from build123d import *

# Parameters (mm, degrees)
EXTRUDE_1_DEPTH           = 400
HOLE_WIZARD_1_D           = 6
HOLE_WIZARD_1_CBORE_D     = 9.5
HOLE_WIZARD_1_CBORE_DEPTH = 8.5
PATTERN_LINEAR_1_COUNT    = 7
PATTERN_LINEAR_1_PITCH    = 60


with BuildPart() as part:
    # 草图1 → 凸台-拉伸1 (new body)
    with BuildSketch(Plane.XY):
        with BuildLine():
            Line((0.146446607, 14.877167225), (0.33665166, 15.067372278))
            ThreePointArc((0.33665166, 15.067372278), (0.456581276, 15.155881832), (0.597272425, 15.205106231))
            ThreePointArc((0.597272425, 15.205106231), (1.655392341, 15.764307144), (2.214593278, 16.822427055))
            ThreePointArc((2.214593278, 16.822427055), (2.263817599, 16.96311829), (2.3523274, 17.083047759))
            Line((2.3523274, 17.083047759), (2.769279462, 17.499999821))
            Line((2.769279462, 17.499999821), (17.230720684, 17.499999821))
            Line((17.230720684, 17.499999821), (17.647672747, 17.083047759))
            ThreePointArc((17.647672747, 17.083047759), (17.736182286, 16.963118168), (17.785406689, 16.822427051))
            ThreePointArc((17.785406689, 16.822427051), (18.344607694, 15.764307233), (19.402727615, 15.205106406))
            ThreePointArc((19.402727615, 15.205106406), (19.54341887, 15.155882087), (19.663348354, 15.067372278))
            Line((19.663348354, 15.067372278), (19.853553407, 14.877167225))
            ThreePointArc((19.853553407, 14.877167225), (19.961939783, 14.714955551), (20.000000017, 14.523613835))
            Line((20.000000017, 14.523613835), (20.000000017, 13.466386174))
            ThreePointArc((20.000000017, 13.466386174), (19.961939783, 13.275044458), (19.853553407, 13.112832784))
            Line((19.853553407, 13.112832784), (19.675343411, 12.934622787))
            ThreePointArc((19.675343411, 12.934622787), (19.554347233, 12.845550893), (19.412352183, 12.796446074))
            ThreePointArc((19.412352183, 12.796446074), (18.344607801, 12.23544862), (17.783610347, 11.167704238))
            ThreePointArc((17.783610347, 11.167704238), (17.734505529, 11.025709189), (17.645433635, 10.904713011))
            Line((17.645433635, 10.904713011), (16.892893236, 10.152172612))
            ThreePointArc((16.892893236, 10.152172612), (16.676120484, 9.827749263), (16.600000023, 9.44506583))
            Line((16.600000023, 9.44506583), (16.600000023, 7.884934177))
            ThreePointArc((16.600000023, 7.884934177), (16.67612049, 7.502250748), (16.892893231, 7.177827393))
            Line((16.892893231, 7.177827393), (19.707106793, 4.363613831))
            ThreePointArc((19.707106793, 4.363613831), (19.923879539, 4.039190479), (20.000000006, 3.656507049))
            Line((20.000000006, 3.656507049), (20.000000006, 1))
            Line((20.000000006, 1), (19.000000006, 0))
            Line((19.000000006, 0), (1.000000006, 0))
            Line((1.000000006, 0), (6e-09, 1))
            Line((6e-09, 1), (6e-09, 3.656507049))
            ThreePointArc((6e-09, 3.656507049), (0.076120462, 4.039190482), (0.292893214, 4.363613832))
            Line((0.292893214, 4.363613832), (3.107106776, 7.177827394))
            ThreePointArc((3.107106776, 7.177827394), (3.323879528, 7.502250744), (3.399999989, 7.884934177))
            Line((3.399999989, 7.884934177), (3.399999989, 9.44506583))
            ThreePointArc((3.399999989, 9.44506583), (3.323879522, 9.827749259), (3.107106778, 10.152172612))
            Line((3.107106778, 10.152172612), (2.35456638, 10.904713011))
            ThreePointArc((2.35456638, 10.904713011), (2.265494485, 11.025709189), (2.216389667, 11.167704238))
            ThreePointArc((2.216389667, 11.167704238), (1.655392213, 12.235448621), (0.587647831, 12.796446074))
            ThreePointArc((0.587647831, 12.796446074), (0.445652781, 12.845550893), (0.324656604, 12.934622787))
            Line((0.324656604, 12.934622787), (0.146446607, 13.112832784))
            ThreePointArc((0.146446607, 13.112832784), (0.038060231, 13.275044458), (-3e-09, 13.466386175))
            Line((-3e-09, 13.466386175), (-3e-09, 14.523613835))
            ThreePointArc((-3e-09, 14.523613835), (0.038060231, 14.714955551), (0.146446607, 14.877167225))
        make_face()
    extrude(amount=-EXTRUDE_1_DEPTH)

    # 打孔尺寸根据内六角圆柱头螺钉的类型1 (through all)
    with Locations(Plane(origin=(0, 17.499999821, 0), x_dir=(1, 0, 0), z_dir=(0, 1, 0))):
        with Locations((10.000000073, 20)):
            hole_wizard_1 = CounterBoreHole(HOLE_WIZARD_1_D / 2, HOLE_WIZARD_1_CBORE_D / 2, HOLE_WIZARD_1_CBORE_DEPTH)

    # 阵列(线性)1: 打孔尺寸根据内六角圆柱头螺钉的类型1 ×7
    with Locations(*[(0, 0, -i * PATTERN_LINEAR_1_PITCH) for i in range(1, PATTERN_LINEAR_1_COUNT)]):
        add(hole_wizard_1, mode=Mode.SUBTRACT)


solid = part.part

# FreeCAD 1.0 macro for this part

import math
import FreeCAD as App
import Part
import Sketcher
from FreeCAD import Vector

doc = App.newDocument("Part")
body = doc.addObject("PartDesign::Body", "Body")

# Sketch on XY plane
sketch1 = body.newObject("Sketcher::SketchObject", "Sketch")
sketch1.AttachmentSupport = (doc.getObject("XY_Plane"), [""])
sketch1.MapMode = "FlatFace"
sketch1.addGeometry([
    Part.LineSegment(Vector(0.336652, 15.067372, 0), Vector(0.146447, 14.877167, 0)),  # 0
    Part.ArcOfCircle(Part.Circle(Vector(0.5, 14.523614, 0), Vector(0, 0, 1), 0.5), math.radians(135), math.radians(180)),  # 1
    Part.LineSegment(Vector(0, 14.523614, 0), Vector(0, 13.466386, 0)),  # 2
    Part.ArcOfCircle(Part.Circle(Vector(0.5, 13.466386, 0), Vector(0, 0, 1), 0.5), math.radians(180), math.radians(225)),  # 3
    Part.LineSegment(Vector(0.146447, 13.112833, 0), Vector(0.324657, 12.934623, 0)),  # 4
    Part.ArcOfCircle(Part.Circle(Vector(0.67821, 13.288176, 0), Vector(0, 0, 1), 0.5), math.radians(-135), math.radians(-100.435256)),  # 5
    Part.ArcOfCircle(Part.Circle(Vector(0.219965, 10.800022, 0), Vector(0, 0, 1), 2.03), math.radians(10.435255), math.radians(79.564745)),  # 6
    Part.ArcOfCircle(Part.Circle(Vector(2.70812, 11.258266, 0), Vector(0, 0, 1), 0.5), math.radians(-169.564745), math.radians(-135)),  # 7
    Part.LineSegment(Vector(2.354566, 10.904713, 0), Vector(3.107107, 10.152173, 0)),  # 8
    Part.ArcOfCircle(Part.Circle(Vector(2.4, 9.445066, 0), Vector(0, 0, 1), 1), math.radians(0.000001), math.radians(44.999998)),  # 9
    Part.LineSegment(Vector(3.4, 9.445066, 0), Vector(3.4, 7.884934, 0)),  # 10
    Part.ArcOfCircle(Part.Circle(Vector(2.4, 7.884934, 0), Vector(0, 0, 1), 1), math.radians(-45), math.radians(0.000001)),  # 11
    Part.LineSegment(Vector(3.107107, 7.177827, 0), Vector(0.292893, 4.363614, 0)),  # 12
    Part.ArcOfCircle(Part.Circle(Vector(1, 3.656507, 0), Vector(0, 0, 1), 1), math.radians(134.999999), math.radians(180.000002)),  # 13
    Part.LineSegment(Vector(0, 3.656507, 0), Vector(0, 1, 0)),  # 14
    Part.LineSegment(Vector(0, 1, 0), Vector(1, 0, 0)),  # 15
    Part.LineSegment(Vector(1, 0, 0), Vector(19, 0, 0)),  # 16
    Part.LineSegment(Vector(19, 0, 0), Vector(20, 1, 0)),  # 17
    Part.LineSegment(Vector(20, 1, 0), Vector(20, 3.656507, 0)),  # 18
    Part.ArcOfCircle(Part.Circle(Vector(19, 3.656507, 0), Vector(0, 0, 1), 1), math.radians(0), math.radians(44.999999)),  # 19
    Part.LineSegment(Vector(19.707107, 4.363614, 0), Vector(16.892893, 7.177827, 0)),  # 20
    Part.ArcOfCircle(Part.Circle(Vector(17.6, 7.884934, 0), Vector(0, 0, 1), 1), math.radians(-179.999999), math.radians(-135.000003)),  # 21
    Part.LineSegment(Vector(16.6, 7.884934, 0), Vector(16.6, 9.445066, 0)),  # 22
    Part.ArcOfCircle(Part.Circle(Vector(17.6, 9.445066, 0), Vector(0, 0, 1), 1), math.radians(134.999999), math.radians(180.000001)),  # 23
    Part.LineSegment(Vector(16.892893, 10.152173, 0), Vector(17.645434, 10.904713, 0)),  # 24
    Part.ArcOfCircle(Part.Circle(Vector(17.29188, 11.258266, 0), Vector(0, 0, 1), 0.5), math.radians(-45), math.radians(-10.435255)),  # 25
    Part.ArcOfCircle(Part.Circle(Vector(19.780035, 10.800022, 0), Vector(0, 0, 1), 2.03), math.radians(100.435256), math.radians(169.564744)),  # 26
    Part.ArcOfCircle(Part.Circle(Vector(19.32179, 13.288176, 0), Vector(0, 0, 1), 0.5), math.radians(-79.564744), math.radians(-45)),  # 27
    Part.LineSegment(Vector(19.675343, 12.934623, 0), Vector(19.853553, 13.112833, 0)),  # 28
    Part.ArcOfCircle(Part.Circle(Vector(19.5, 13.466386, 0), Vector(0, 0, 1), 0.5), math.radians(-45), math.radians(0)),  # 29
    Part.LineSegment(Vector(20, 13.466386, 0), Vector(20, 14.523614, 0)),  # 30
    Part.ArcOfCircle(Part.Circle(Vector(19.5, 14.523614, 0), Vector(0, 0, 1), 0.5), math.radians(0), math.radians(45)),  # 31
    Part.LineSegment(Vector(19.853553, 14.877167, 0), Vector(19.663348, 15.067372, 0)),  # 32
    Part.ArcOfCircle(Part.Circle(Vector(19.309796, 14.71382, 0), Vector(0, 0, 1), 0.499999), math.radians(44.99998), math.radians(79.288468)),  # 33
    Part.ArcOfCircle(Part.Circle(Vector(19.780034, 17.199734, 0), Vector(0, 0, 1), 2.03), math.radians(-169.288398), math.radians(-100.711592)),  # 34
    Part.ArcOfCircle(Part.Circle(Vector(17.294116, 16.729493, 0), Vector(0, 0, 1), 0.500003), math.radians(10.711658), math.radians(44.999835)),  # 35
    Part.LineSegment(Vector(17.647673, 17.083048, 0), Vector(17.230721, 17.5, 0)),  # 36
    Part.LineSegment(Vector(17.230721, 17.5, 0), Vector(2.769279, 17.5, 0)),  # 37
    Part.LineSegment(Vector(2.769279, 17.5, 0), Vector(2.352327, 17.083048, 0)),  # 38
    Part.ArcOfCircle(Part.Circle(Vector(2.70588, 16.729495, 0), Vector(0, 0, 1), 0.499999), math.radians(134.99998), math.radians(169.288464)),  # 39
    Part.ArcOfCircle(Part.Circle(Vector(0.219966, 17.199734, 0), Vector(0, 0, 1), 2.03), math.radians(-79.288405), math.radians(-10.711596)),  # 40
    Part.ArcOfCircle(Part.Circle(Vector(0.690206, 14.713816, 0), Vector(0, 0, 1), 0.500003), math.radians(100.711651), math.radians(134.999836)),  # 41
], False)
sketch1.addConstraint([
    Sketcher.Constraint("Tangent", 0, 2, 1, 1),
    Sketcher.Constraint("Tangent", 1, 2, 2, 1),
    Sketcher.Constraint("Tangent", 2, 2, 3, 1),
    Sketcher.Constraint("Tangent", 3, 2, 4, 1),
    Sketcher.Constraint("Tangent", 4, 2, 5, 1),
    Sketcher.Constraint("Tangent", 5, 2, 6, 2),
    Sketcher.Constraint("Tangent", 6, 1, 7, 1),
    Sketcher.Constraint("Tangent", 7, 2, 8, 1),
    Sketcher.Constraint("Tangent", 8, 2, 9, 2),
    Sketcher.Constraint("Tangent", 9, 1, 10, 1),
    Sketcher.Constraint("Tangent", 10, 2, 11, 2),
    Sketcher.Constraint("Tangent", 11, 1, 12, 1),
    Sketcher.Constraint("Tangent", 12, 2, 13, 1),
    Sketcher.Constraint("Tangent", 13, 2, 14, 1),
    Sketcher.Constraint("Coincident", 14, 2, 15, 1),
    Sketcher.Constraint("Coincident", 15, 2, 16, 1),
    Sketcher.Constraint("Coincident", 16, 2, 17, 1),
    Sketcher.Constraint("Coincident", 17, 2, 18, 1),
    Sketcher.Constraint("Tangent", 18, 2, 19, 1),
    Sketcher.Constraint("Tangent", 19, 2, 20, 1),
    Sketcher.Constraint("Tangent", 20, 2, 21, 2),
    Sketcher.Constraint("Tangent", 21, 1, 22, 1),
    Sketcher.Constraint("Tangent", 22, 2, 23, 2),
    Sketcher.Constraint("Tangent", 23, 1, 24, 1),
    Sketcher.Constraint("Tangent", 24, 2, 25, 1),
    Sketcher.Constraint("Tangent", 25, 2, 26, 2),
    Sketcher.Constraint("Tangent", 26, 1, 27, 1),
    Sketcher.Constraint("Tangent", 27, 2, 28, 1),
    Sketcher.Constraint("Tangent", 28, 2, 29, 1),
    Sketcher.Constraint("Tangent", 29, 2, 30, 1),
    Sketcher.Constraint("Tangent", 30, 2, 31, 1),
    Sketcher.Constraint("Tangent", 31, 2, 32, 1),
    Sketcher.Constraint("Tangent", 32, 2, 33, 1),
    Sketcher.Constraint("Tangent", 33, 2, 34, 2),
    Sketcher.Constraint("Tangent", 34, 1, 35, 1),
    Sketcher.Constraint("Coincident", 35, 2, 36, 1),
    Sketcher.Constraint("Coincident", 36, 2, 37, 1),
    Sketcher.Constraint("Coincident", 37, 2, 38, 1),
    Sketcher.Constraint("Tangent", 38, 2, 39, 1),
    Sketcher.Constraint("Tangent", 39, 2, 40, 2),
    Sketcher.Constraint("Tangent", 40, 1, 41, 1),
    Sketcher.Constraint("Coincident", 41, 2, 0, 1),
    Sketcher.Constraint("Vertical", 2),
    Sketcher.Constraint("Vertical", 10),
    Sketcher.Constraint("Vertical", 14),
    Sketcher.Constraint("Horizontal", 16),
    Sketcher.Constraint("Vertical", 18),
    Sketcher.Constraint("Vertical", 22),
    Sketcher.Constraint("Vertical", 30),
    Sketcher.Constraint("Horizontal", 37),
    Sketcher.Constraint("Equal", 1, 3),
    Sketcher.Constraint("Equal", 3, 5),
    Sketcher.Constraint("Equal", 5, 7),
    Sketcher.Constraint("Equal", 9, 11),
    Sketcher.Constraint("Equal", 11, 13),
    Sketcher.Constraint("Equal", 13, 19),
    Sketcher.Constraint("Equal", 19, 21),
    Sketcher.Constraint("Equal", 21, 23),
    Sketcher.Constraint("Equal", 7, 25),
    Sketcher.Constraint("Equal", 6, 26),
    Sketcher.Constraint("Equal", 25, 27),
    Sketcher.Constraint("Equal", 27, 29),
    Sketcher.Constraint("Equal", 29, 31),
    Sketcher.Constraint("Equal", 31, 33),
    Sketcher.Constraint("Equal", 26, 34),
    Sketcher.Constraint("Equal", 33, 39),
    Sketcher.Constraint("Equal", 34, 40),
    Sketcher.Constraint("Equal", 35, 41),
    Sketcher.Constraint("PointOnObject", 1, 2, -2),
    Sketcher.Constraint("PointOnObject", 13, 2, -2),
    Sketcher.Constraint("PointOnObject", 15, 2, -1),
    Sketcher.Constraint("Perpendicular", 0, 4),
    Sketcher.Constraint("Parallel", 4, 8),
    Sketcher.Constraint("Perpendicular", 8, 12),
    Sketcher.Constraint("Perpendicular", 12, 15),
    Sketcher.Constraint("Perpendicular", 15, 17),
    Sketcher.Constraint("Perpendicular", 17, 20),
    Sketcher.Constraint("Perpendicular", 20, 24),
    Sketcher.Constraint("Parallel", 24, 28),
    Sketcher.Constraint("Perpendicular", 28, 32),
    Sketcher.Constraint("Parallel", 32, 36),
    Sketcher.Constraint("Perpendicular", 36, 38),
    Sketcher.Constraint("Horizontal", 13, 3, 19, 3),
    Sketcher.Constraint("Horizontal", 11, 3, 21, 3),
    Sketcher.Constraint("Horizontal", 9, 3, 23, 3),
    Sketcher.Constraint("Horizontal", 7, 3, 25, 3),
    Sketcher.Constraint("Horizontal", 6, 3, 26, 3),
    Sketcher.Constraint("Horizontal", 5, 3, 27, 3),
    Sketcher.Constraint("Horizontal", 3, 3, 29, 3),
    Sketcher.Constraint("Horizontal", 1, 3, 31, 3),
    Sketcher.Constraint("Horizontal", 35, 3, 39, 3),
    Sketcher.Constraint("Horizontal", 34, 3, 40, 3),
    Sketcher.Constraint("Horizontal", 14, 2, 17, 2),
    Sketcher.Constraint("Horizontal", 12, 2, 19, 2),
    Sketcher.Constraint("Horizontal", 35, 2, 38, 2),
    Sketcher.Constraint("Horizontal", 34, 1, 39, 2),
    Sketcher.Constraint("Horizontal", 33, 2, 40, 1),
    Sketcher.Constraint("Horizontal", 32, 2, 41, 2),
    Sketcher.Constraint("Vertical", 26, 3, 34, 3),
    Sketcher.Constraint("Vertical", 13, 3, 15, 2),
    Sketcher.Constraint("Radius", 9, 1.0),
    Sketcher.Constraint("Radius", 1, 0.5),
    Sketcher.Constraint("DistanceX", 16, 1, 16, 2, 18.0),
    Sketcher.Constraint("Radius", 6, 2.03),
    Sketcher.Constraint("DistanceX", -1, 1, 9, 3, 2.4),
    Sketcher.Constraint("DistanceY", -1, 1, 36, 2, 17.5),
    Sketcher.Constraint("DistanceX", 37, 2, 37, 1, 14.461441),
    Sketcher.Constraint("DistanceY", 10, 2, 10, 1, 1.560132),
    Sketcher.Constraint("Distance", 0, 0.268991),
    Sketcher.Constraint("Distance", 36, 0.589659),
    Sketcher.Constraint("DistanceY", 2, 2, 2, 1, 1.057228),
    Sketcher.Constraint("DistanceY", 14, 2, 14, 1, 2.656507),
    Sketcher.Constraint("DistanceX", -1, 1, 5, 3, 0.67821),
    Sketcher.Constraint("DistanceY", -1, 1, 6, 3, 10.800022),
])
pad1 = body.newObject("PartDesign::Pad", "Pad")
pad1.Profile = sketch1
pad1.Length = 400
pad1.Reversed = True

# Sketch on XZ plane
sketch2 = body.newObject("Sketcher::SketchObject", "Sketch001")
sketch2.AttachmentSupport = (doc.getObject("XZ_Plane"), [""])
sketch2.MapMode = "FlatFace"
sketch2.AttachmentOffset = App.Placement(Vector(0, 0, -17.5), App.Rotation())
sketch2.addGeometry(Part.Circle(Vector(10, -20, 0), Vector(0, 0, 1), 3), False)
sketch2.addConstraint([
    Sketcher.Constraint("Diameter", 0, 6.0),
    Sketcher.Constraint("DistanceX", -1, 1, 0, 3, 10.0),
    Sketcher.Constraint("DistanceY", 0, 3, -1, 1, 20.0),
])
doc.recompute()
hole = body.newObject("PartDesign::Hole", "Hole")
hole.Profile = sketch2
hole.ThreadType = "None"
hole.Diameter = 6
hole.DepthType = "ThroughAll"
hole.HoleCutType = "Counterbore"
hole.HoleCutDiameter = 9.5
hole.HoleCutDepth = 8.5
hole.Reversed = True
doc.recompute()

linearpattern = body.newObject("PartDesign::LinearPattern", "LinearPattern")
linearpattern.Originals = [hole]
linearpattern.Direction = (doc.getObject("Z_Axis"), [""])
linearpattern.Mode = "offset"
linearpattern.Offset = 60
linearpattern.Occurrences = 7
linearpattern.Reversed = True
body.Tip = linearpattern

doc.recompute()
